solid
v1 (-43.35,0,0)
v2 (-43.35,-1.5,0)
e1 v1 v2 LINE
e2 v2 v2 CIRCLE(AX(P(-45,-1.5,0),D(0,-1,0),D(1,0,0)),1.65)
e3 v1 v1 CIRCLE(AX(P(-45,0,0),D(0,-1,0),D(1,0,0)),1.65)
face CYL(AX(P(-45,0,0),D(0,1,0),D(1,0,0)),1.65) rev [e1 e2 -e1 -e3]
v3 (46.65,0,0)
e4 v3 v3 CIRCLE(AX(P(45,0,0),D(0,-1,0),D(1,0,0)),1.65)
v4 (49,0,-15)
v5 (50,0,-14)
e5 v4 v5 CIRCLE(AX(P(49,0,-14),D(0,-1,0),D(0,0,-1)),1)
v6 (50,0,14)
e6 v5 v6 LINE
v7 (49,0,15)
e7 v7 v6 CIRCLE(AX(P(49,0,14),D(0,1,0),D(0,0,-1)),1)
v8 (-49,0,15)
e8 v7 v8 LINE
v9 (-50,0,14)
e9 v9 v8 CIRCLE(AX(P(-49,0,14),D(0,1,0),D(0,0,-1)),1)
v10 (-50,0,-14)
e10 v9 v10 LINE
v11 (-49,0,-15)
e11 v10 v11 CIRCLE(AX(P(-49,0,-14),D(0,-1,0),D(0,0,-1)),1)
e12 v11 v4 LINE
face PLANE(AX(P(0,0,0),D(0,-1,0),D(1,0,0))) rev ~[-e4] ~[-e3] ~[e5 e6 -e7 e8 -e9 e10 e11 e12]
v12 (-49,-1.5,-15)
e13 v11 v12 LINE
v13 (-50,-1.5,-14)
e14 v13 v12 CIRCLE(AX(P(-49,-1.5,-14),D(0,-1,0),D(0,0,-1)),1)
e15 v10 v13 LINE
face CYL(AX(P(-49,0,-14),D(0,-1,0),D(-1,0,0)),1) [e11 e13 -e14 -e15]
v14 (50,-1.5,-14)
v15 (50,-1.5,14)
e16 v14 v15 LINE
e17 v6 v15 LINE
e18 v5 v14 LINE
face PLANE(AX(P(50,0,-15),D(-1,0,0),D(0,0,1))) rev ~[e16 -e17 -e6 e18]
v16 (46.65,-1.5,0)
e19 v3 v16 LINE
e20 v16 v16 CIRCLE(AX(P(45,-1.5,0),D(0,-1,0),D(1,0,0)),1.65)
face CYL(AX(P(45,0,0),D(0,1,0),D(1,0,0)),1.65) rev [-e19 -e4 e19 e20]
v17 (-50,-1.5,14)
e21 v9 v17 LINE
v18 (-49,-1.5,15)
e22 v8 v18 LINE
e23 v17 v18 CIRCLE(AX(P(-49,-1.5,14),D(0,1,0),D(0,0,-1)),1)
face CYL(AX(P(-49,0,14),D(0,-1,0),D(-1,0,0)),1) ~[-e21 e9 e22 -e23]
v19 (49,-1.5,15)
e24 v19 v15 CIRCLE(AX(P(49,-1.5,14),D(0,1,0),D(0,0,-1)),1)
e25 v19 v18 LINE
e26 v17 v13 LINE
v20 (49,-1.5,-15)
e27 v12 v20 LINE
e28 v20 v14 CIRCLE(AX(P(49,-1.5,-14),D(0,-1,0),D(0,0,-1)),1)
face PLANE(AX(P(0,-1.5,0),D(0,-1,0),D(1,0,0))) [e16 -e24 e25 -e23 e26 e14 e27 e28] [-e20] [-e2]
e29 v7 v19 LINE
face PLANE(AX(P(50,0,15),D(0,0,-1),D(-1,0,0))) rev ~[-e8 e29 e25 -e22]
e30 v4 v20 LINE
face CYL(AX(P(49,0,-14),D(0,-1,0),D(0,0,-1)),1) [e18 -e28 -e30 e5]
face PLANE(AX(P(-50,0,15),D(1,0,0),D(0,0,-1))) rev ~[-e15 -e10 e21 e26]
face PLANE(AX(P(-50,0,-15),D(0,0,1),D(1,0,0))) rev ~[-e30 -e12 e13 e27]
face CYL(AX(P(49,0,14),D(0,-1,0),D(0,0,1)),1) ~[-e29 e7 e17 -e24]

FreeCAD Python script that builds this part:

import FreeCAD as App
import Part
import Sketcher
from FreeCAD import Vector


def edges_at(feature, points):
    """Names of the edges that pass closest to the given points."""
    edges = feature.Shape.Edges
    near = lambda p: min(range(len(edges)), key=lambda i: edges[i].distToShape(Part.Vertex(*p))[0])
    return sorted({f"Edge{near(p) + 1}" for p in points})


def add_polygon(sketch, points):
    """Adds a closed chain of lines whose ends are joined by coincident constraints."""
    first, n = sketch.GeometryCount, len(points)
    for a, b in zip(points, points[1:] + points[:1]):
        sketch.addGeometry(Part.LineSegment(App.Vector(*a, 0), App.Vector(*b, 0)), False)
    for i in range(n):
        sketch.addConstraint(Sketcher.Constraint("Coincident", first + i, 2, first + (i + 1) % n, 1))

doc = App.newDocument("Part")
body = doc.addObject("PartDesign::Body", "Body")

sketch1 = body.newObject("Sketcher::SketchObject", "Sketch")
sketch1.AttachmentSupport = (doc.getObject("XZ_Plane"), [""])
sketch1.MapMode = "FlatFace"
add_polygon(sketch1, [(-50, 15), (-50, -15), (50, -15), (50, 15)])
sketch1.addGeometry(Part.Circle(Vector(-45, 0, 0), Vector(0, 0, 1), 1.6), False)
sketch1.addGeometry(Part.Circle(Vector(45, 0, 0), Vector(0, 0, 1), 1.6), False)
sketch1.addConstraint([
    Sketcher.Constraint("Vertical", 0),
    Sketcher.Constraint("Horizontal", 1),
    Sketcher.Constraint("Vertical", 2),
    Sketcher.Constraint("Horizontal", 3),
    Sketcher.Constraint("Equal", 4, 5),
    Sketcher.Constraint("Symmetric", 4, 3, 5, 3, -1, 1),
    Sketcher.Constraint("Symmetric", 0, 2, 2, 2, -1, 1),
    Sketcher.Constraint("PointOnObject", 4, 3, -1),
    Sketcher.Constraint("Diameter", 4, 3.3),
    Sketcher.Constraint("DistanceX", 1, 1, 1, 2, 100.0),
    Sketcher.Constraint("DistanceY", 0, 2, 0, 1, 30.0),
    Sketcher.Constraint("DistanceX", 4, 3, -1, 1, 45.0),
])
pad1 = body.newObject("PartDesign::Pad", "Pad")
pad1.Profile = sketch1
pad1.Length = 1.5
doc.recompute()

fillet = body.newObject("PartDesign::Fillet", "Fillet")
fillet.Base = (pad1, edges_at(pad1, [
    (50, -0.75, 15),
    (50, -0.75, -15),
    (-50, -0.75, 15),
    (-50, -0.75, -15),
]))
fillet.Radius = 1

doc.recompute()
